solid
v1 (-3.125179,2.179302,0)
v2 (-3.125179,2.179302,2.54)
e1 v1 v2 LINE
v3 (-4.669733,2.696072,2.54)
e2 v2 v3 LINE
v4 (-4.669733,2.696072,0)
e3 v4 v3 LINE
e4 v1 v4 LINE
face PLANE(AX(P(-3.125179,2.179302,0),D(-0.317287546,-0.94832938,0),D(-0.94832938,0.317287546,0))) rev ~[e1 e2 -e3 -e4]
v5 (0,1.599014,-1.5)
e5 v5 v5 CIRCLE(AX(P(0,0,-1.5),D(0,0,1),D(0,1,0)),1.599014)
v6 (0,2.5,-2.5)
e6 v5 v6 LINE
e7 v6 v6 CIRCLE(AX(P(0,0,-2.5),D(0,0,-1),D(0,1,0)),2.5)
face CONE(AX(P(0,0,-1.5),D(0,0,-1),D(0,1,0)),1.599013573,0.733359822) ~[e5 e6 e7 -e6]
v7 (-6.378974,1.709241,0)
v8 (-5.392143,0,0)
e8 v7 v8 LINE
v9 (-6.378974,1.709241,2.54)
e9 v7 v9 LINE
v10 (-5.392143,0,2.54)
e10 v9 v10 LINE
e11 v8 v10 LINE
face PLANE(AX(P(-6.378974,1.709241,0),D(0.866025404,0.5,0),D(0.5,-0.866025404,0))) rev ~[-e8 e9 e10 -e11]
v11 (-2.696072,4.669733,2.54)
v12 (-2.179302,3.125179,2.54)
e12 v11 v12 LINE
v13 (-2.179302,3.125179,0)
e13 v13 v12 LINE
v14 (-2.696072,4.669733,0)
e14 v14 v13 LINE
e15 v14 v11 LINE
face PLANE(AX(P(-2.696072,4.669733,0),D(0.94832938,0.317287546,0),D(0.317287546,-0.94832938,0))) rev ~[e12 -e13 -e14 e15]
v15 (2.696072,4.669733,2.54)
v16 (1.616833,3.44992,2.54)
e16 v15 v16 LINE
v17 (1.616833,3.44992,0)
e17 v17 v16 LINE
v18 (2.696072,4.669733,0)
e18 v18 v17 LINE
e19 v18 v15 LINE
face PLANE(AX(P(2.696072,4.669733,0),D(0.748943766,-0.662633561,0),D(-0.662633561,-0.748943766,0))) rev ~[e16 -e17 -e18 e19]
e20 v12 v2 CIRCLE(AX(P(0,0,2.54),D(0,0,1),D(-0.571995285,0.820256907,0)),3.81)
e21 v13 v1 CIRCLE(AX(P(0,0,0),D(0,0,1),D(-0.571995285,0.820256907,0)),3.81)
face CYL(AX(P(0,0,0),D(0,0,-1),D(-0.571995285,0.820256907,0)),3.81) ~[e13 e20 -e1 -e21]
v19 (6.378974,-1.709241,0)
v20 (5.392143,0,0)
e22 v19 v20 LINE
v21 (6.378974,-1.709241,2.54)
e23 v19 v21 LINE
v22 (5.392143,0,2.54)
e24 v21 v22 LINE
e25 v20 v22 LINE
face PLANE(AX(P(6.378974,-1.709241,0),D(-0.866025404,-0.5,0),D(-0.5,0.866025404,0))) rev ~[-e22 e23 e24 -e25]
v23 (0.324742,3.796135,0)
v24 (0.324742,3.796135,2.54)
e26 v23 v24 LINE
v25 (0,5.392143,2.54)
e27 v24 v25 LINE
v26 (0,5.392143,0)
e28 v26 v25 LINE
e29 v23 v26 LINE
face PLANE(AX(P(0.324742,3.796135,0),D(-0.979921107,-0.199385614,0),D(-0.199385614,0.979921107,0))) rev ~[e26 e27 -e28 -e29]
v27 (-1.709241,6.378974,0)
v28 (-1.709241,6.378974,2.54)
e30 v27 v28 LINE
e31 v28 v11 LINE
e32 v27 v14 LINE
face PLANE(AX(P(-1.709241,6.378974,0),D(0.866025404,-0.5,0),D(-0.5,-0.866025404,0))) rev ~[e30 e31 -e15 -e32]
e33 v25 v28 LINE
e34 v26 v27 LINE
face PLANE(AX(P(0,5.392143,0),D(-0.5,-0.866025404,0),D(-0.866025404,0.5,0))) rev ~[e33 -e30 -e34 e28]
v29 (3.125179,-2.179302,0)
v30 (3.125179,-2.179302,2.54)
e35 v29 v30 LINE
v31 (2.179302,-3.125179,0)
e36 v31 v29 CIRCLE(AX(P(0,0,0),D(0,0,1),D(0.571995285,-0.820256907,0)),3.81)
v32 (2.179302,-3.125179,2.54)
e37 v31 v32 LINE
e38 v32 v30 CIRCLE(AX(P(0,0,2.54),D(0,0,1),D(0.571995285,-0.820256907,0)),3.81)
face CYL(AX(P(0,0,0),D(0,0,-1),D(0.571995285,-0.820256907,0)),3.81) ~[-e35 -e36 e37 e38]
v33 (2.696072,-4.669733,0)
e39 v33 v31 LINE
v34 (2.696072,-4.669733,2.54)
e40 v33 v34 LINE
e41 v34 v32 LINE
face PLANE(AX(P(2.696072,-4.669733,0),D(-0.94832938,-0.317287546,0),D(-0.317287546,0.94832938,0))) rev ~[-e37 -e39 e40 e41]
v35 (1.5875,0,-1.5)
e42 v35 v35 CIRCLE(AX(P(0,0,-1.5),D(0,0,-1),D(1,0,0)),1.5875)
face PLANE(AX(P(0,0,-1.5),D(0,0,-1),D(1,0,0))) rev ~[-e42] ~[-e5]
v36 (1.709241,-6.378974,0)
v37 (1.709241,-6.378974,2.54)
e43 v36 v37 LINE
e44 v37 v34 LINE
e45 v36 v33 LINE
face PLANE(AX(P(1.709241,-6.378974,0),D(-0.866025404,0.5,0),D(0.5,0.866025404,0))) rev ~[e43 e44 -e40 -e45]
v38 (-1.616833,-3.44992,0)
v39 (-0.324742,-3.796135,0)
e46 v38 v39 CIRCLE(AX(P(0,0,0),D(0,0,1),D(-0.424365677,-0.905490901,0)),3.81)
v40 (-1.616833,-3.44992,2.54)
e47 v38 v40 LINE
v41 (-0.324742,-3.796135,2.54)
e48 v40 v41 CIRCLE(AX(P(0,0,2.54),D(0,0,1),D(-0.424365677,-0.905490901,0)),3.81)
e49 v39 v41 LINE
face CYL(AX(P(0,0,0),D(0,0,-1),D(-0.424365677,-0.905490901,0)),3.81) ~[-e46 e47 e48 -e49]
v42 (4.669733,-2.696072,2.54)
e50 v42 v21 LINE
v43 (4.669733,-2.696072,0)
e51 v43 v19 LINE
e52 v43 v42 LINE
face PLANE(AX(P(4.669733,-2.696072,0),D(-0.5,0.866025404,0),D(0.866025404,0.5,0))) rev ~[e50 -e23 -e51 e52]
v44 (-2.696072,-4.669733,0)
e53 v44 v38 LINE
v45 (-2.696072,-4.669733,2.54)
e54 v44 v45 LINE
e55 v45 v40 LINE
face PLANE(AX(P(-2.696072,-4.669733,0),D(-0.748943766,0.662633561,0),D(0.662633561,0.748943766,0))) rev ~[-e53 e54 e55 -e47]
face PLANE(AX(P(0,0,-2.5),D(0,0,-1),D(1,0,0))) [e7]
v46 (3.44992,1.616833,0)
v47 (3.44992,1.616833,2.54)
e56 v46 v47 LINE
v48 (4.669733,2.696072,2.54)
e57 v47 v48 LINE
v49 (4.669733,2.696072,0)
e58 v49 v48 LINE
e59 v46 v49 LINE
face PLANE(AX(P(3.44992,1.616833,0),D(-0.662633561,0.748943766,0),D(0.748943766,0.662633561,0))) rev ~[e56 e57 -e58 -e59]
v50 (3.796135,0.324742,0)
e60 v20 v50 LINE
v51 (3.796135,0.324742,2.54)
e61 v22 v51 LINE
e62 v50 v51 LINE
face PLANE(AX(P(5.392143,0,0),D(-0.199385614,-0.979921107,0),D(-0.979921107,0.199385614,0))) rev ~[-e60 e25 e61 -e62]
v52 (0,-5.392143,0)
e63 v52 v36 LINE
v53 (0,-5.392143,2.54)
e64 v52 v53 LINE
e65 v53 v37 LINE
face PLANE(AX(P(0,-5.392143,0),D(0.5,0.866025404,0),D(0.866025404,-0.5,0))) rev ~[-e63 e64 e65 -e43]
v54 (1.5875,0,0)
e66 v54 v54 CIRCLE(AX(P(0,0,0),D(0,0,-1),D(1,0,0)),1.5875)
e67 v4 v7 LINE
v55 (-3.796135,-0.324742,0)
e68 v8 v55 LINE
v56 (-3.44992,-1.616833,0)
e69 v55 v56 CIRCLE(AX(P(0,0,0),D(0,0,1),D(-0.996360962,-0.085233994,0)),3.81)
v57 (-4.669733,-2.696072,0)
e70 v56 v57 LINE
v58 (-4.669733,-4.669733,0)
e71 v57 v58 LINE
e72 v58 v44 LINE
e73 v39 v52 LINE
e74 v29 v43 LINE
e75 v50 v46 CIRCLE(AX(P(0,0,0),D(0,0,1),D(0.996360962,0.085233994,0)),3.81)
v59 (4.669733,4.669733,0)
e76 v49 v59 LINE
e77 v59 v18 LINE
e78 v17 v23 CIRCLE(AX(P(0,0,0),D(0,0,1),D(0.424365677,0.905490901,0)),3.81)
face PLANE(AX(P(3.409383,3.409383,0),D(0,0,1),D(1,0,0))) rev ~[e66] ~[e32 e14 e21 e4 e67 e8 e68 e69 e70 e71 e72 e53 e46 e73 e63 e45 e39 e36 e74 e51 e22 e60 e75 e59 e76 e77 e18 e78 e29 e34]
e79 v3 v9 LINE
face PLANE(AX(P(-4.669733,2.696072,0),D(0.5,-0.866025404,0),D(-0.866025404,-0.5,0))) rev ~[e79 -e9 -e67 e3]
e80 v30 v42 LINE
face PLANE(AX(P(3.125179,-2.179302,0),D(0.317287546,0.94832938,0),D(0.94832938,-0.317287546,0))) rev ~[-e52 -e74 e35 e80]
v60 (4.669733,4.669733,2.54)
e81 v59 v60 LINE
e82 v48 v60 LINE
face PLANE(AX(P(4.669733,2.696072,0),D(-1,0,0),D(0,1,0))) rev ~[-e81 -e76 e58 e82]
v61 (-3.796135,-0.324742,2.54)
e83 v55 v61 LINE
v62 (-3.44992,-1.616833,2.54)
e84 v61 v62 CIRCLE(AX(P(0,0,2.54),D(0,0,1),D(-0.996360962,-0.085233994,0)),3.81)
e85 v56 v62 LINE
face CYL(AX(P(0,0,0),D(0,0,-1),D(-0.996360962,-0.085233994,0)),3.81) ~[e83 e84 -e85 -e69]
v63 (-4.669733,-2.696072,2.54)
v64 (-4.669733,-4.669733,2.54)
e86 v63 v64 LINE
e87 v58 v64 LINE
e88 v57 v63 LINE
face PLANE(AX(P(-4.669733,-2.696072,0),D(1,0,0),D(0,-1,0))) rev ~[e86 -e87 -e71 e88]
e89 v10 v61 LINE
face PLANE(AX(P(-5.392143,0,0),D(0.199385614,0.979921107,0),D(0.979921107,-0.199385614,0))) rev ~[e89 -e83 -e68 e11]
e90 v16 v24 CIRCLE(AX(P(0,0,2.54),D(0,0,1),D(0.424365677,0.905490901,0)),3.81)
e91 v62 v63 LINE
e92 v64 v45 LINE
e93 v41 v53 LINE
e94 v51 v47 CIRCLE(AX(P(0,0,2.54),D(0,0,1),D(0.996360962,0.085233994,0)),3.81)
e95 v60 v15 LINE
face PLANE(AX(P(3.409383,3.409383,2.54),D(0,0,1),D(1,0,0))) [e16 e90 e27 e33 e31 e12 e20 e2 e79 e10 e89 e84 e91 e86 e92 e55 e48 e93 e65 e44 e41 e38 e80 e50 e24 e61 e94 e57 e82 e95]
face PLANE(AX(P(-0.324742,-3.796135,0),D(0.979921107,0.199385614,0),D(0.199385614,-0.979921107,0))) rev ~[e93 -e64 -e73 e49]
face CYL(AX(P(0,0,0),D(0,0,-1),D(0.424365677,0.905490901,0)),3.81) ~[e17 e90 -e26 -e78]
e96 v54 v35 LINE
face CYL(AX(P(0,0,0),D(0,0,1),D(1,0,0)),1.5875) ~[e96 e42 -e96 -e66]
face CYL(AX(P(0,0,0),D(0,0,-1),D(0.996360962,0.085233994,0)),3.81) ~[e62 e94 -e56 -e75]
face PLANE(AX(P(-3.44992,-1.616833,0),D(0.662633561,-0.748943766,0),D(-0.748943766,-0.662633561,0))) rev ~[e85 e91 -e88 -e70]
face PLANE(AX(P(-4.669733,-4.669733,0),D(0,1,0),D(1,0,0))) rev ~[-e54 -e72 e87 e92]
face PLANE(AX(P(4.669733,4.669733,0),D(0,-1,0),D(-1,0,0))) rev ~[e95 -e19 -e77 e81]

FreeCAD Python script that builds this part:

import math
import FreeCAD as App
import Part
import Sketcher

V = App.Vector
Q = App.Units.Quantity

doc = App.newDocument("Part")
body = doc.addObject("PartDesign::Body", "Body")

sketch1 = body.newObject("Sketcher::SketchObject", "Sketch")
sketch1.AttachmentSupport = (doc.getObject("XY_Plane"), [""])
sketch1.MapMode = "FlatFace"
sketch1.addGeometry([
    Part.LineSegment(V(3.4, 1.6, 0), V(4.7, 2.7, 0)),
    Part.LineSegment(V(4.7, 2.7, 0), V(4.7, 4.7, 0)),
    Part.LineSegment(V(4.7, 4.7, 0), V(2.7, 4.7, 0)),
    Part.LineSegment(V(2.7, 4.7, 0), V(1.6, 3.4, 0)),
    Part.ArcOfCircle(Part.Circle(V(0, 0, 0), V(0, 0, 1), 3.8), math.radians(65), math.radians(85)),
    Part.LineSegment(V(0.3, 3.8, 0), V(0, 5.4, 0)),
    Part.LineSegment(V(0, 5.4, 0), V(-1.7, 6.4, 0)),
    Part.LineSegment(V(-1.7, 6.4, 0), V(-2.7, 4.7, 0)),
    Part.LineSegment(V(-2.7, 4.7, 0), V(-2.2, 3.1, 0)),
    Part.ArcOfCircle(Part.Circle(V(0, 0, 0), V(0, 0, 1), 3.8), math.radians(125), math.radians(145)),
    Part.LineSegment(V(-3.1, 2.2, 0), V(-4.7, 2.7, 0)),
    Part.LineSegment(V(-4.7, 2.7, 0), V(-6.4, 1.7, 0)),
    Part.LineSegment(V(-6.4, 1.7, 0), V(-5.4, 0, 0)),
    Part.LineSegment(V(-5.4, 0, 0), V(-3.8, -0.3, 0)),
    Part.ArcOfCircle(Part.Circle(V(0, 0, 0), V(0, 0, 1), 3.8), math.radians(-175), math.radians(-155)),
    Part.LineSegment(V(-3.4, -1.6, 0), V(-4.7, -2.7, 0)),
    Part.LineSegment(V(-4.7, -2.7, 0), V(-4.7, -4.7, 0)),
    Part.LineSegment(V(-4.7, -4.7, 0), V(-2.7, -4.7, 0)),
    Part.LineSegment(V(-2.7, -4.7, 0), V(-1.6, -3.4, 0)),
    Part.ArcOfCircle(Part.Circle(V(0, 0, 0), V(0, 0, 1), 3.8), math.radians(-115), math.radians(-95)),
    Part.LineSegment(V(-0.3, -3.8, 0), V(0, -5.4, 0)),
    Part.LineSegment(V(0, -5.4, 0), V(1.7, -6.4, 0)),
    Part.LineSegment(V(1.7, -6.4, 0), V(2.7, -4.7, 0)),
    Part.LineSegment(V(2.7, -4.7, 0), V(2.2, -3.1, 0)),
    Part.ArcOfCircle(Part.Circle(V(0, 0, 0), V(0, 0, 1), 3.8), math.radians(-55), math.radians(-35)),
    Part.LineSegment(V(3.1, -2.2, 0), V(4.7, -2.7, 0)),
    Part.LineSegment(V(4.7, -2.7, 0), V(6.4, -1.7, 0)),
    Part.LineSegment(V(6.4, -1.7, 0), V(5.4, 0, 0)),
    Part.LineSegment(V(5.4, 0, 0), V(3.8, 0.3, 0)),
    Part.ArcOfCircle(Part.Circle(V(0, 0, 0), V(0, 0, 1), 3.8), math.radians(5), math.radians(25)),
], False)
sketch1.addConstraint([
    Sketcher.Constraint("Coincident", 0, 2, 1, 1),
    Sketcher.Constraint("Coincident", 1, 2, 2, 1),
    Sketcher.Constraint("Coincident", 2, 2, 3, 1),
    Sketcher.Constraint("Coincident", 3, 2, 4, 1),
    Sketcher.Constraint("Coincident", 4, 2, 5, 1),
    Sketcher.Constraint("Coincident", 5, 2, 6, 1),
    Sketcher.Constraint("Coincident", 6, 2, 7, 1),
    Sketcher.Constraint("Coincident", 7, 2, 8, 1),
    Sketcher.Constraint("Coincident", 8, 2, 9, 1),
    Sketcher.Constraint("Coincident", 9, 2, 10, 1),
    Sketcher.Constraint("Coincident", 10, 2, 11, 1),
    Sketcher.Constraint("Coincident", 11, 2, 12, 1),
    Sketcher.Constraint("Coincident", 12, 2, 13, 1),
    Sketcher.Constraint("Coincident", 13, 2, 14, 1),
    Sketcher.Constraint("Coincident", 14, 2, 15, 1),
    Sketcher.Constraint("Coincident", 15, 2, 16, 1),
    Sketcher.Constraint("Coincident", 16, 2, 17, 1),
    Sketcher.Constraint("Coincident", 17, 2, 18, 1),
    Sketcher.Constraint("Coincident", 18, 2, 19, 1),
    Sketcher.Constraint("Coincident", 19, 2, 20, 1),
    Sketcher.Constraint("Coincident", 20, 2, 21, 1),
    Sketcher.Constraint("Coincident", 21, 2, 22, 1),
    Sketcher.Constraint("Coincident", 22, 2, 23, 1),
    Sketcher.Constraint("Coincident", 23, 2, 24, 1),
    Sketcher.Constraint("Coincident", 24, 2, 25, 1),
    Sketcher.Constraint("Coincident", 25, 2, 26, 1),
    Sketcher.Constraint("Coincident", 26, 2, 27, 1),
    Sketcher.Constraint("Coincident", 27, 2, 28, 1),
    Sketcher.Constraint("Coincident", 28, 2, 29, 1),
    Sketcher.Constraint("Coincident", 29, 2, 0, 1),
    Sketcher.Constraint("Vertical", 1),
    Sketcher.Constraint("Horizontal", 2),
    Sketcher.Constraint("Vertical", 16),
    Sketcher.Constraint("Horizontal", 17),
    Sketcher.Constraint("Coincident", 4, 3, -1, 1),
    Sketcher.Constraint("Coincident", 9, 3, -1, 1),
    Sketcher.Constraint("Coincident", 14, 3, -1, 1),
    Sketcher.Constraint("Coincident", 19, 3, -1, 1),
    Sketcher.Constraint("Coincident", 24, 3, -1, 1),
    Sketcher.Constraint("Coincident", 29, 3, -1, 1),
    Sketcher.Constraint("Equal", 4, 9),
    Sketcher.Constraint("Equal", 9, 14),
    Sketcher.Constraint("Equal", 14, 19),
    Sketcher.Constraint("Equal", 19, 24),
    Sketcher.Constraint("Equal", 24, 29),
    Sketcher.Constraint("Symmetric", 0, 2, 15, 2, -1, 1),
    Sketcher.Constraint("Symmetric", 2, 2, 17, 2, -1, 1),
    Sketcher.Constraint("Symmetric", 5, 2, 20, 2, -1, 1),
    Sketcher.Constraint("Symmetric", 6, 2, 21, 2, -1, 1),
    Sketcher.Constraint("Symmetric", 7, 2, 22, 2, -1, 1),
    Sketcher.Constraint("Symmetric", 10, 2, 25, 2, -1, 1),
    Sketcher.Constraint("Symmetric", 11, 2, 26, 2, -1, 1),
    Sketcher.Constraint("Symmetric", 12, 2, 27, 2, -1, 1),
    Sketcher.Constraint("Symmetric", 2, 2, 7, 2, -2),
    Sketcher.Constraint("Symmetric", 0, 2, 10, 2, -2),
    Sketcher.Constraint("PointOnObject", 5, 2, -2),
    Sketcher.Constraint("PointOnObject", 12, 2, -1),
    Sketcher.Constraint("Perpendicular", 6, 7),
    Sketcher.Constraint("Perpendicular", 11, 12),
    Sketcher.Constraint("Parallel", 0, 15),
    Sketcher.Constraint("Parallel", 3, 18),
    Sketcher.Constraint("Parallel", 5, 20),
    Sketcher.Constraint("Parallel", 8, 23),
    Sketcher.Constraint("Parallel", 10, 25),
    Sketcher.Constraint("Parallel", 13, 28),
    Sketcher.Constraint("Equal", 17, 1),
    Sketcher.Constraint("Equal", 0, 3),
    Sketcher.Constraint("Equal", 3, 5),
    Sketcher.Constraint("Equal", 6, 7),
    Sketcher.Constraint("Equal", 5, 8),
    Sketcher.Constraint("Equal", 8, 10),
    Sketcher.Constraint("Equal", 7, 11),
    Sketcher.Constraint("Equal", 11, 12),
    Sketcher.Constraint("Equal", 10, 13),
    Sketcher.Constraint("Angle", 6, Q("150 deg")),
    Sketcher.Constraint("Angle", 11, Q("-150 deg")),
    Sketcher.Constraint("Radius", 4, 3.81),
    Sketcher.Constraint("DistanceX", 2, 2, 2, 1, 1.973661),
    Sketcher.Constraint("DistanceX", 3, 2, 0, 2, 3.0529),
    Sketcher.Constraint("Distance", 0, 1.628711),
])
pad1 = body.newObject("PartDesign::Pad", "Pad")
pad1.Profile = sketch1
pad1.Length = 2.54

sketch2 = body.newObject("Sketcher::SketchObject", "Sketch001")
sketch2.AttachmentSupport = (doc.getObject("XY_Plane"), [""])
sketch2.MapMode = "FlatFace"
sketch2.addGeometry(Part.Circle(V(0, 0, 0), V(0, 0, 1), 1.6), False)
sketch2.addConstraint([
    Sketcher.Constraint("Coincident", 0, 3, -1, 1),
    Sketcher.Constraint("Diameter", 0, 3.175),
])
pad2 = body.newObject("PartDesign::Pad", "Pad001")
pad2.Profile = sketch2
pad2.Length = 1.5
pad2.Reversed = True

sketch3 = body.newObject("Sketcher::SketchObject", "Sketch002")
sketch3.AttachmentSupport = (doc.getObject("XY_Plane"), [""])
sketch3.MapMode = "FlatFace"
sketch3.AttachmentOffset = App.Placement(V(0, 0, -1.5), App.Rotation())
sketch3.addGeometry(Part.Circle(V(0, 0, 0), V(0, 0, 1), 2.5), False)
sketch3.addConstraint([
    Sketcher.Constraint("Coincident", 0, 3, -1, 1),
    Sketcher.Constraint("Diameter", 0, 5.0),
])
pad3 = body.newObject("PartDesign::Pad", "Pad002")
pad3.Profile = sketch3
pad3.Length = 1
pad3.Reversed = True

sketch4 = body.newObject("Sketcher::SketchObject", "Sketch003")
sketch4.AttachmentSupport = (doc.getObject("YZ_Plane"), [""])
sketch4.MapMode = "FlatFace"
sketch4.addGeometry([
    Part.LineSegment(V(1.6, -1.5, 0), V(2.5, -2.5, 0)),
    Part.LineSegment(V(2.5, -2.5, 0), V(2.5, -1.5, 0)),
    Part.LineSegment(V(2.5, -1.5, 0), V(1.6, -1.5, 0)),
], False)
sketch4.addConstraint([
    Sketcher.Constraint("Coincident", 0, 2, 1, 1),
    Sketcher.Constraint("Coincident", 1, 2, 2, 1),
    Sketcher.Constraint("Coincident", 2, 2, 0, 1),
    Sketcher.Constraint("Vertical", 1),
    Sketcher.Constraint("Horizontal", 2),
    Sketcher.Constraint("DistanceY", 1, 1, 1, 2, 1.0),
    Sketcher.Constraint("DistanceX", -1, 1, 0, 2, 2.5),
    Sketcher.Constraint("DistanceY", 0, 2, -1, 1, 2.5),
    Sketcher.Constraint("DistanceX", 2, 2, 2, 1, 0.900986),
])
groove = body.newObject("PartDesign::Groove", "Groove")
groove.Profile = sketch4
groove.ReferenceAxis = (sketch4, ["V_Axis"])
groove.Angle = 360

doc.recompute()
